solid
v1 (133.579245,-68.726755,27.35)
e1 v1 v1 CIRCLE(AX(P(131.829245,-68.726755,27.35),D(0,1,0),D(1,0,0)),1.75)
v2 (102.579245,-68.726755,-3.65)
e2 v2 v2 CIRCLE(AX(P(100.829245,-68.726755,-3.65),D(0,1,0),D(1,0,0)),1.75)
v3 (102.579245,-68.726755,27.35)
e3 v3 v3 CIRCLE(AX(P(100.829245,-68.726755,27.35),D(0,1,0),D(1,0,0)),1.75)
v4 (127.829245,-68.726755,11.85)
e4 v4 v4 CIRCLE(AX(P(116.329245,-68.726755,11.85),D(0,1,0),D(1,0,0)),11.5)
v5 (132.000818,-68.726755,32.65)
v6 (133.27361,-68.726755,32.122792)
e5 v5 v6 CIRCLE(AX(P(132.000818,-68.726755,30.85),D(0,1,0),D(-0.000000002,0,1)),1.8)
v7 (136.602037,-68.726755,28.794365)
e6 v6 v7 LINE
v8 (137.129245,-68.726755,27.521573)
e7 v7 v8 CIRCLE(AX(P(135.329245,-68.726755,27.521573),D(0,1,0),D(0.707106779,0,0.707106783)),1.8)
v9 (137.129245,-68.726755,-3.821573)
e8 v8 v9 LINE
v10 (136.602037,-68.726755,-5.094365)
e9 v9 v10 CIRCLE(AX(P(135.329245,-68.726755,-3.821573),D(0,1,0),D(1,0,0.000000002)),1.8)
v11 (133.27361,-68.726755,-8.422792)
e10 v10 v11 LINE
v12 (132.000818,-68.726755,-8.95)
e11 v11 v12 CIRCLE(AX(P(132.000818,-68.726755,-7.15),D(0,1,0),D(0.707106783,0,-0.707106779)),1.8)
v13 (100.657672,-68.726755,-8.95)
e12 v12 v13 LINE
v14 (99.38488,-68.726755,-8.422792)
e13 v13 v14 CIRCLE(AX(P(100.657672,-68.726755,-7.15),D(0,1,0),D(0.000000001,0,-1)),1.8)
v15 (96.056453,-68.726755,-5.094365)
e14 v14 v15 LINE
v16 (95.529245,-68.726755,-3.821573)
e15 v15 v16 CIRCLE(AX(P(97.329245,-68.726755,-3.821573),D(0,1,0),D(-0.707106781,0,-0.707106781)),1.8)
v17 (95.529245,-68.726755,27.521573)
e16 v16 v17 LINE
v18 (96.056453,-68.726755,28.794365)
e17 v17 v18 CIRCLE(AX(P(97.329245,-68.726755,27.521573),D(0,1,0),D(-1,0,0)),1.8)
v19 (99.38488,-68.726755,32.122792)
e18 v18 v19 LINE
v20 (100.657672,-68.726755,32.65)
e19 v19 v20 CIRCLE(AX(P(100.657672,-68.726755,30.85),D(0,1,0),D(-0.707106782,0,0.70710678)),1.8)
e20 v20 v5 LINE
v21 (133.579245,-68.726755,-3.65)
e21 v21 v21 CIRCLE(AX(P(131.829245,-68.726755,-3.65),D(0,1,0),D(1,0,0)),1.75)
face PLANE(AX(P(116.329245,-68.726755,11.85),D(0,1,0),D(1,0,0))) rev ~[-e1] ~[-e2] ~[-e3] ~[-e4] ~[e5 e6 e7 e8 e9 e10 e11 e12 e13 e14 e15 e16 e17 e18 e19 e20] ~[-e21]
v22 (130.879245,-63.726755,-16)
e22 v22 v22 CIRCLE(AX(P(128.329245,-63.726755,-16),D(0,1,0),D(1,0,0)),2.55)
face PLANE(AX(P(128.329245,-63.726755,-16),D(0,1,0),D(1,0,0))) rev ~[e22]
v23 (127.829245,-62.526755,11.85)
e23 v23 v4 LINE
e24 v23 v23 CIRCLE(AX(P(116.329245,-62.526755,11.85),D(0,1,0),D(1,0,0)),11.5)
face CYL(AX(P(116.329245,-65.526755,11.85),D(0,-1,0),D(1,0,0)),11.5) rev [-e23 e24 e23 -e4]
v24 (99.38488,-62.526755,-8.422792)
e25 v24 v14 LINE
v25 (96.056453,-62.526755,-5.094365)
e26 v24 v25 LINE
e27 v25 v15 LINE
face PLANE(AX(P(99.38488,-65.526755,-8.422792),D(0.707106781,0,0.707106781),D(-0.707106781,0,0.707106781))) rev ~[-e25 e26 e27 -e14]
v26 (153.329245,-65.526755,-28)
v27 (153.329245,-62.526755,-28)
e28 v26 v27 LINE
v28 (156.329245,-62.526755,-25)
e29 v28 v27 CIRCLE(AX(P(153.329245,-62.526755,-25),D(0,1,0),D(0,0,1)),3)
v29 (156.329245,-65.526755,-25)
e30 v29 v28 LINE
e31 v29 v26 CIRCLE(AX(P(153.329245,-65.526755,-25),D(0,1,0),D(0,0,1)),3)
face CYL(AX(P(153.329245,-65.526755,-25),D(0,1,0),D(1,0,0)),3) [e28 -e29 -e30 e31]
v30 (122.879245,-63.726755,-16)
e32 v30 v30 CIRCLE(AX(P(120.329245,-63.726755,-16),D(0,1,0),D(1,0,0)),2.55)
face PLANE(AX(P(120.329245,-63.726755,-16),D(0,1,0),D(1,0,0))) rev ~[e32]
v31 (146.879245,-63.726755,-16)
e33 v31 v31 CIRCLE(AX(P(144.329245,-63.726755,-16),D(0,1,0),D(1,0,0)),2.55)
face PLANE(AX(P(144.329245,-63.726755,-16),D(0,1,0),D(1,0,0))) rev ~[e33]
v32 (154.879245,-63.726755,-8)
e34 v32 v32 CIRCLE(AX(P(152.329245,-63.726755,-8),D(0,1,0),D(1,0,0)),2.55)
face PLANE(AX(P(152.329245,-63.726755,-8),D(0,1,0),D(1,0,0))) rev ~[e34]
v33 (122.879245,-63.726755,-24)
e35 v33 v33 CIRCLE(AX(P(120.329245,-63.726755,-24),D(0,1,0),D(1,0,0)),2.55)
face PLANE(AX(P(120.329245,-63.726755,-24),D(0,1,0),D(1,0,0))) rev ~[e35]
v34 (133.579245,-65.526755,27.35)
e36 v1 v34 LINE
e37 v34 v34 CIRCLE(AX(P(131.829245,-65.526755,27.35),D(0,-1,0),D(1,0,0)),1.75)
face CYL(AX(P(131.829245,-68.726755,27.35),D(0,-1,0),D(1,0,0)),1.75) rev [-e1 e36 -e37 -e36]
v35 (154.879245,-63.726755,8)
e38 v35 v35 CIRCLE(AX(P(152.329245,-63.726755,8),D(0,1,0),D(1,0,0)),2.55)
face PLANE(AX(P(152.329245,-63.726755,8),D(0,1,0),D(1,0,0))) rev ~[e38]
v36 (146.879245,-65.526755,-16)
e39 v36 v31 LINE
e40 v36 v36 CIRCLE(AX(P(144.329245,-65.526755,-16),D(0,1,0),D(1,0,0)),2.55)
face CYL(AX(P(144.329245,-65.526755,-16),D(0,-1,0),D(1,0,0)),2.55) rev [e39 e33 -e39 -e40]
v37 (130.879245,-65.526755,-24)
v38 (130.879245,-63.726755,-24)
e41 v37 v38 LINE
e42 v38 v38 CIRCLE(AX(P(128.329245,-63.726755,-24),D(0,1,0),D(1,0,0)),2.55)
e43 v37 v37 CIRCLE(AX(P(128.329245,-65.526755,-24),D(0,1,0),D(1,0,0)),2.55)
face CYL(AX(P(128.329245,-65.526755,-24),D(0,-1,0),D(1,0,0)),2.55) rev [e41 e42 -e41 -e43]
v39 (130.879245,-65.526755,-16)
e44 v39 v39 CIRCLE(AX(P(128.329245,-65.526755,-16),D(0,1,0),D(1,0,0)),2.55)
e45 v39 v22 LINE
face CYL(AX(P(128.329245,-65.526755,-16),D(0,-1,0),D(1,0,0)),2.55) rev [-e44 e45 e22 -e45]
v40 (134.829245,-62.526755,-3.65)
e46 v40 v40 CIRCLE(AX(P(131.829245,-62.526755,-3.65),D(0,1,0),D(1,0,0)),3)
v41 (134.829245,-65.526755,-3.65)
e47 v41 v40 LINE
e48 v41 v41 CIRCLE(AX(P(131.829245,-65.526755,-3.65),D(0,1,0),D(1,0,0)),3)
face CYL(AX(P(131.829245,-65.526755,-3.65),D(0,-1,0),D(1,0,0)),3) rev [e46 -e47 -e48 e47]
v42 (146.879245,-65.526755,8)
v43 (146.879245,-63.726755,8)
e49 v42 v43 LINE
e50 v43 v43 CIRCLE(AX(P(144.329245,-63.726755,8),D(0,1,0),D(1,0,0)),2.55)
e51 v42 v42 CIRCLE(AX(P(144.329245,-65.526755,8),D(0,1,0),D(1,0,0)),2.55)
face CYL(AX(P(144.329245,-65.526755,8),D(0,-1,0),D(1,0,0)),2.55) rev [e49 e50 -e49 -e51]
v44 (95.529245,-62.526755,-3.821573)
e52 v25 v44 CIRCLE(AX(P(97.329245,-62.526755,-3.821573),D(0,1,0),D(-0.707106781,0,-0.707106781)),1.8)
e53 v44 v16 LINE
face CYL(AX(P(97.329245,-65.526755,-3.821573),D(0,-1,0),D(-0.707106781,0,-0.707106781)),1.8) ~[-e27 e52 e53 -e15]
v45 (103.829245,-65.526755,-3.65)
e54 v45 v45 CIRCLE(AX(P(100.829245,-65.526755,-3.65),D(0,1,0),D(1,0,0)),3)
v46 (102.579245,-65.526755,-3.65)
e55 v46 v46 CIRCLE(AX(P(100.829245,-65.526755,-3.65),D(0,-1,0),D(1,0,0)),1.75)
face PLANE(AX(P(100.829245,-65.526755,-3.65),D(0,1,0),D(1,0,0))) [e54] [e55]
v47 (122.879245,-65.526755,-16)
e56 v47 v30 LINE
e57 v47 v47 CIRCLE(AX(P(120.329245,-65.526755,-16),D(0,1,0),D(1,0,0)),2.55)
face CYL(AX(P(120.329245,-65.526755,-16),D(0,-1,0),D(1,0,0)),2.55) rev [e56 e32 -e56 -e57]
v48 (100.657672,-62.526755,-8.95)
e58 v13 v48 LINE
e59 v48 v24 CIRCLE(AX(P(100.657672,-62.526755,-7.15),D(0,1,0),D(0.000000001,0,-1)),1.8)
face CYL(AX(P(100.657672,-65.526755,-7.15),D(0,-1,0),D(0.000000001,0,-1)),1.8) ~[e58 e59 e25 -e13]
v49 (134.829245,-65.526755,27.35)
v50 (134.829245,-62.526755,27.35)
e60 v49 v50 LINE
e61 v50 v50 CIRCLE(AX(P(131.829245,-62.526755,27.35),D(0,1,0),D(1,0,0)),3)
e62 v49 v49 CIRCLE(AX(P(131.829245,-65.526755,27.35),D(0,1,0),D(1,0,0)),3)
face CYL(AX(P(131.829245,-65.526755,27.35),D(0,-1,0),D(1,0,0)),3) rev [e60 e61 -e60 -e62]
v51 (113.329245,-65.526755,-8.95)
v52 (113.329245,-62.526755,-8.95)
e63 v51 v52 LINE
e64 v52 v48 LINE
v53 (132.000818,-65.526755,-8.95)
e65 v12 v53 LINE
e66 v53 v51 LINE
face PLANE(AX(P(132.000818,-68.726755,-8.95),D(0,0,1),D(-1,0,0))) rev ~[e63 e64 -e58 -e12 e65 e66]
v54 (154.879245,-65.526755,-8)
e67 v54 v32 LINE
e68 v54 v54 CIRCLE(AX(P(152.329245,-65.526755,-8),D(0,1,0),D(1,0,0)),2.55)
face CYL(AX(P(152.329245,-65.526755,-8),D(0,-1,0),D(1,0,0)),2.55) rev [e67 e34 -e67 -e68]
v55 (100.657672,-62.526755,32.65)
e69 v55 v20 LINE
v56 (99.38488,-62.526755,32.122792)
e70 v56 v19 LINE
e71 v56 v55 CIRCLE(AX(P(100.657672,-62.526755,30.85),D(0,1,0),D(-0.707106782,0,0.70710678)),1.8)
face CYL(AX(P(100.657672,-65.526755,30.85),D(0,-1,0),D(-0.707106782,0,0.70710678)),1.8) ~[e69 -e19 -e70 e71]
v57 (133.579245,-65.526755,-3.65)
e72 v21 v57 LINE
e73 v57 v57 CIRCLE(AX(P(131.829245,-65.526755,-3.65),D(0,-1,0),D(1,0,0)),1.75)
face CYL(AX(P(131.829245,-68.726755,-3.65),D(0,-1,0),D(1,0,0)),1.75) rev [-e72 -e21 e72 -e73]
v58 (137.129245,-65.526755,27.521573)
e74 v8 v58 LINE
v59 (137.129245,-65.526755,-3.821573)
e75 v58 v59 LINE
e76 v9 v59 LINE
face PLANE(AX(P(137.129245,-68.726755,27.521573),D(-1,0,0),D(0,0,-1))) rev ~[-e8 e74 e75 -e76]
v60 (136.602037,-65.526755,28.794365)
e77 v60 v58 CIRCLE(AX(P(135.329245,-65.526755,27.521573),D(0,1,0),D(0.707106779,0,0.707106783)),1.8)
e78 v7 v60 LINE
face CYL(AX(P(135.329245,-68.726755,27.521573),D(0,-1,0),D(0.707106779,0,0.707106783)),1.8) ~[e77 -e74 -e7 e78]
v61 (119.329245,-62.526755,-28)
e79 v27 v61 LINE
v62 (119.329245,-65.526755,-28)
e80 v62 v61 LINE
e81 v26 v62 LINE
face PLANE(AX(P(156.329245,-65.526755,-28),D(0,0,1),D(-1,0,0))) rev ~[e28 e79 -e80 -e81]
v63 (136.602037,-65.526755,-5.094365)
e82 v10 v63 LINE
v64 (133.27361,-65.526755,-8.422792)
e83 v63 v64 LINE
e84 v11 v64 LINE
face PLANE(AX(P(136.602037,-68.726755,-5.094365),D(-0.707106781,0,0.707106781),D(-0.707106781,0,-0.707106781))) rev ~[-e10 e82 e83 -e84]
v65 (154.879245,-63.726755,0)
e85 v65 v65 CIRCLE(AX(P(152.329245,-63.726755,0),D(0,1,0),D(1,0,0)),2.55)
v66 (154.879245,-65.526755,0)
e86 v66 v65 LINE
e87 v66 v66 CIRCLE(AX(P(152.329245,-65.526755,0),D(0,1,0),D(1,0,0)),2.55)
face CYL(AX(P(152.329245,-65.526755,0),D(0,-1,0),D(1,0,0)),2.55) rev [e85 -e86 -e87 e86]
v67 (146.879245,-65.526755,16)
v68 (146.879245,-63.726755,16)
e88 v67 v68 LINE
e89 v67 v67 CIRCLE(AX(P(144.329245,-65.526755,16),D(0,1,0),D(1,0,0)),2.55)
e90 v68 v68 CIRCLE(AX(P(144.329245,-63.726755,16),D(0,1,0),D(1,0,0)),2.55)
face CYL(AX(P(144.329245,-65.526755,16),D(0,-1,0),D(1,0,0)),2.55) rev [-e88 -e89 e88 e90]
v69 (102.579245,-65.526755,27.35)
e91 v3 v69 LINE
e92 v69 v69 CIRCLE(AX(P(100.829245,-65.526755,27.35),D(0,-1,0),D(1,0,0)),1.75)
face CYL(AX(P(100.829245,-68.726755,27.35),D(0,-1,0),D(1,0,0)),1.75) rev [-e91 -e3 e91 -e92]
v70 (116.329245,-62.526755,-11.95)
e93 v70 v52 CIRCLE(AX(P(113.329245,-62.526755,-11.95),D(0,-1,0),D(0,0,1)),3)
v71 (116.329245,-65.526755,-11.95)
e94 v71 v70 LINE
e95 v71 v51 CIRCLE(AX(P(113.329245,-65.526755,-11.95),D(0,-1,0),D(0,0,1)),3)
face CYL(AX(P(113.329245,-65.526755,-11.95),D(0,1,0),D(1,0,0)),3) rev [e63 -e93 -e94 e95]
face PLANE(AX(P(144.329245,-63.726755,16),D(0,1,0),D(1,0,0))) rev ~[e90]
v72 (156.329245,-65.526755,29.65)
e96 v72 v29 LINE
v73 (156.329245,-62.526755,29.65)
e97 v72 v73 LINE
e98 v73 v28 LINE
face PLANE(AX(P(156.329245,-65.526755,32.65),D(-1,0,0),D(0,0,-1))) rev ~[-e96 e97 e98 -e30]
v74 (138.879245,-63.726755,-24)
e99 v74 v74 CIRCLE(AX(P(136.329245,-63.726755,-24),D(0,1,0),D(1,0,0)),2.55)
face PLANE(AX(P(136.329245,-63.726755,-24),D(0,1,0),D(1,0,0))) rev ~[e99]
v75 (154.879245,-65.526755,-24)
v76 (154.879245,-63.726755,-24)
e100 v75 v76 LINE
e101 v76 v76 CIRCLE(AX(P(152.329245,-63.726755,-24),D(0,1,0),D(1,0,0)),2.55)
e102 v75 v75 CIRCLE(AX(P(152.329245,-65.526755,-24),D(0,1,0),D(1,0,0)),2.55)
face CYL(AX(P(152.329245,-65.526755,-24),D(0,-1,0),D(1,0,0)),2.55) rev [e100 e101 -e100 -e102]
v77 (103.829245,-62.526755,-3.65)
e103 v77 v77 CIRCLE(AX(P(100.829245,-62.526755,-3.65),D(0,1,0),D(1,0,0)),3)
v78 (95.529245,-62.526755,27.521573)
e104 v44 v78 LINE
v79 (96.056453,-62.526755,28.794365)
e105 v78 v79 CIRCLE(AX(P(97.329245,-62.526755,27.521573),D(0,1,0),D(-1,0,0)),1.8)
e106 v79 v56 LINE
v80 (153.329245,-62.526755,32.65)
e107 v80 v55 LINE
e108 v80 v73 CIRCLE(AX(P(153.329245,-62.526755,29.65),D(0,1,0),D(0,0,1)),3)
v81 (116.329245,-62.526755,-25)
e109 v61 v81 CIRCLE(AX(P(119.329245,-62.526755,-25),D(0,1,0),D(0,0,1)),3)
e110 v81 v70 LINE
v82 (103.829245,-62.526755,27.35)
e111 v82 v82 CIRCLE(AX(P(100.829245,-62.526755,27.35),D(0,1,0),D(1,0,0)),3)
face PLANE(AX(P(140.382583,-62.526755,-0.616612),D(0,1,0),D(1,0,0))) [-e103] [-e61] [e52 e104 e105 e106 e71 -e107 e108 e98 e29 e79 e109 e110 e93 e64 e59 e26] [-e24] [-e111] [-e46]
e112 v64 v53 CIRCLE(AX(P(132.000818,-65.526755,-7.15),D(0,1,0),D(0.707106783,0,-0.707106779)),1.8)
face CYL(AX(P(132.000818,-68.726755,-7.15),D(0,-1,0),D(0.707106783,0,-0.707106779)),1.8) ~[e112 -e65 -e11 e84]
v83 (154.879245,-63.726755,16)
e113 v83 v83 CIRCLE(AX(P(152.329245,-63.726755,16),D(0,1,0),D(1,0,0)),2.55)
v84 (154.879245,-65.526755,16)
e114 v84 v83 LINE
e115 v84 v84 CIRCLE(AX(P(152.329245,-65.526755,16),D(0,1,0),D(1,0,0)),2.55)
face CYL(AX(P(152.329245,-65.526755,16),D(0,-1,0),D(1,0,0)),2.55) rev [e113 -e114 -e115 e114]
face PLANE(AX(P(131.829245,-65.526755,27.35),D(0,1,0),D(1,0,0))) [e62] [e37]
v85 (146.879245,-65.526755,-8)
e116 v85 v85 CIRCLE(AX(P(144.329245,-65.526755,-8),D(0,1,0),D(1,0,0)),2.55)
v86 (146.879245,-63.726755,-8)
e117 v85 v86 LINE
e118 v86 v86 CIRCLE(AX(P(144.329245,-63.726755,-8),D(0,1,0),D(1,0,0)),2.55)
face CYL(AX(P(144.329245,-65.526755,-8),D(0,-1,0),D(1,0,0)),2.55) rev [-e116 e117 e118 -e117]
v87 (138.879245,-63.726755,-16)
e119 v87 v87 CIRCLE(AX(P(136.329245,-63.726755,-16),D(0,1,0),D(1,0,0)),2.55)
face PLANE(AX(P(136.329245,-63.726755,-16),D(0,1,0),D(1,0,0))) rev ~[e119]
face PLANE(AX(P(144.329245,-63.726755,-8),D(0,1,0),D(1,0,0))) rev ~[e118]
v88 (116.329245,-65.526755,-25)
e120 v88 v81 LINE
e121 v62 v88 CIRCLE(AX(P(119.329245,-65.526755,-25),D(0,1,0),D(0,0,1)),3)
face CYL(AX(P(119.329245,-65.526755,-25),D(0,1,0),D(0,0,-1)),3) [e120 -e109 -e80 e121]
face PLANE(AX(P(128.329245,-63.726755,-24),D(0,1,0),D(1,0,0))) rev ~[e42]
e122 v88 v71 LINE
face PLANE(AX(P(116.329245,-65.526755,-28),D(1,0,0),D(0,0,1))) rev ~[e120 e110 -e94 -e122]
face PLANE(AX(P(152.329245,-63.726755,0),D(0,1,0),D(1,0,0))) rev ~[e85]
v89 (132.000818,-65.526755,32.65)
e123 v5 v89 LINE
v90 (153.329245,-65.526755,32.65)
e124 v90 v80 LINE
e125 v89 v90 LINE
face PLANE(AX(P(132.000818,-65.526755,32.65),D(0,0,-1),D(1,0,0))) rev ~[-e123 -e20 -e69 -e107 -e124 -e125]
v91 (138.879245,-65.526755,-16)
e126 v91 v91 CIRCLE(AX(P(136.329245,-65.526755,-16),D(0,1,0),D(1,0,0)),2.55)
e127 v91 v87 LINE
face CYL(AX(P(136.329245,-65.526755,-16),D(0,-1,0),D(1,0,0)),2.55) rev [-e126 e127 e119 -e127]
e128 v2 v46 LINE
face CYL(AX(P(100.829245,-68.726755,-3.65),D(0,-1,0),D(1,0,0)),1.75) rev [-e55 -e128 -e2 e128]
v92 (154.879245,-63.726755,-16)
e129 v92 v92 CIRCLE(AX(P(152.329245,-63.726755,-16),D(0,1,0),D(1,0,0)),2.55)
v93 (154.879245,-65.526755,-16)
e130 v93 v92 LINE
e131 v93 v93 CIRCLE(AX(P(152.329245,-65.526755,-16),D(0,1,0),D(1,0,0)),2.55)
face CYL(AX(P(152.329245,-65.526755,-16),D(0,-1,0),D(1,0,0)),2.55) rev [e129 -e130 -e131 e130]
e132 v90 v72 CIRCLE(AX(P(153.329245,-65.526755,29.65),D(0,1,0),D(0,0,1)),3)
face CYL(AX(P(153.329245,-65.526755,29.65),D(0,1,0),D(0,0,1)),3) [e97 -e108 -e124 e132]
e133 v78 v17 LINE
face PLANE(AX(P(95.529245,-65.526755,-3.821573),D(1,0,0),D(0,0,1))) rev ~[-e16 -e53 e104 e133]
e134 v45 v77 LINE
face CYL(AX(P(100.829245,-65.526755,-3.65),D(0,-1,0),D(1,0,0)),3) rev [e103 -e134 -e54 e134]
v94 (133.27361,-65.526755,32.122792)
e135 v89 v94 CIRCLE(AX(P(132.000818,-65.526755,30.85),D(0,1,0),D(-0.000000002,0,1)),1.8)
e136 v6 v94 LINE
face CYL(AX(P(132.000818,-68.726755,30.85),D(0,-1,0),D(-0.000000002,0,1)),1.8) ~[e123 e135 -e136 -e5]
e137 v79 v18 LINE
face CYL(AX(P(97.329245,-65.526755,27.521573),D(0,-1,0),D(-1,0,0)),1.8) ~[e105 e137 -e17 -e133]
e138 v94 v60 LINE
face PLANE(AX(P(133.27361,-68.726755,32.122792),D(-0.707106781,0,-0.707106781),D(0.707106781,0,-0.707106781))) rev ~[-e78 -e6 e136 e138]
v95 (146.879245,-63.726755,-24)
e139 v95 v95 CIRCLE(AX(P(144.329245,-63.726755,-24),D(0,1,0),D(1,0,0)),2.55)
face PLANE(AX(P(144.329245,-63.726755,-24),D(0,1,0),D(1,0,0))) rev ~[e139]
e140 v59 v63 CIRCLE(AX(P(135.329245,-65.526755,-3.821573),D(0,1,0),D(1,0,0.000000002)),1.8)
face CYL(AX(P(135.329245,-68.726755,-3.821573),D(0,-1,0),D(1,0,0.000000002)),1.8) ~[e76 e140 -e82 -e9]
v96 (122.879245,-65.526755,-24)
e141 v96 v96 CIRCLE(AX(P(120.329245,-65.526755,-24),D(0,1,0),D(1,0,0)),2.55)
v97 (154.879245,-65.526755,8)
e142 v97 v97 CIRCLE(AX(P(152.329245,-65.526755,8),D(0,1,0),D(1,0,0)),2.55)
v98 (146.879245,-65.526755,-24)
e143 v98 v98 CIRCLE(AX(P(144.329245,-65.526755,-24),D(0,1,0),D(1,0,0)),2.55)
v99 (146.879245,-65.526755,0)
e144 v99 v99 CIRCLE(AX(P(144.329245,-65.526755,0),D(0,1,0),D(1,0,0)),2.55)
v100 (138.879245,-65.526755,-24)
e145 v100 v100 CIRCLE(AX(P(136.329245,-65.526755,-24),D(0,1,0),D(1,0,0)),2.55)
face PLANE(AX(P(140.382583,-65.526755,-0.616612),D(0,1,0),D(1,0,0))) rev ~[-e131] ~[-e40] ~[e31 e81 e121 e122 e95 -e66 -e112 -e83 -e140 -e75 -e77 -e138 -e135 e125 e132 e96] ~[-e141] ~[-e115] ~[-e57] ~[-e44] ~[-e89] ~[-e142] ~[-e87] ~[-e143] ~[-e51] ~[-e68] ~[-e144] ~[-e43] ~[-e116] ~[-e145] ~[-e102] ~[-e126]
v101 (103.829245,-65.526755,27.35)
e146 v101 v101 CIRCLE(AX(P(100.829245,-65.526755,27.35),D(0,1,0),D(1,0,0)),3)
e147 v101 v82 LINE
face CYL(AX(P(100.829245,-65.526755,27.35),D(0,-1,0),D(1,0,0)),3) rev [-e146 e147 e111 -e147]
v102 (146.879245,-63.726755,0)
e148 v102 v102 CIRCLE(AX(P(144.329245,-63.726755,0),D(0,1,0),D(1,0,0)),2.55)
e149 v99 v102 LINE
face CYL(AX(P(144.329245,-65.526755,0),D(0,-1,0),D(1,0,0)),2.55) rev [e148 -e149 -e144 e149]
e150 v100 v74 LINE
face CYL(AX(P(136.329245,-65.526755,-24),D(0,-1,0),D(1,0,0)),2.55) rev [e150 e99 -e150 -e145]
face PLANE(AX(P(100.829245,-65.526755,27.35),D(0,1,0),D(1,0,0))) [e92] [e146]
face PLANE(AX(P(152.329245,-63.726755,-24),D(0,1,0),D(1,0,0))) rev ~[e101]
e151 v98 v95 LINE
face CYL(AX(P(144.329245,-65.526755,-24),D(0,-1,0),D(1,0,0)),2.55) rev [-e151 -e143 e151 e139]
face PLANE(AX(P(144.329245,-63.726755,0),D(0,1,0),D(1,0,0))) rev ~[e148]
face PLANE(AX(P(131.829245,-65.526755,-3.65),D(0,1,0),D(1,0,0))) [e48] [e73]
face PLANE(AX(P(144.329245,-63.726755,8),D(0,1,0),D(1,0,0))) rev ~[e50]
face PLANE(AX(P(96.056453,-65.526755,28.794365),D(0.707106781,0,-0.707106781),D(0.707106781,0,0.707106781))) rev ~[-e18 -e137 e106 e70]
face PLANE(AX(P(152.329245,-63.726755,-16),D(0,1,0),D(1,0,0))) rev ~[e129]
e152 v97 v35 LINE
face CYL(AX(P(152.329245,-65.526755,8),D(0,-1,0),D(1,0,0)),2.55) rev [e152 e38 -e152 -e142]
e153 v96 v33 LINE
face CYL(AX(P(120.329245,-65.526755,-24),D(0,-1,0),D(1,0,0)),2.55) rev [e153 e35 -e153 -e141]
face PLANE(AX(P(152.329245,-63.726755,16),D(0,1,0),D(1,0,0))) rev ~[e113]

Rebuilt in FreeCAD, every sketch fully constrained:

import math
import FreeCAD as App
import Part
import Sketcher
from FreeCAD import Vector
Q = App.Units.Quantity


def edges_at(feature, points):
    """Names of the edges that pass closest to the given points."""
    edges = feature.Shape.Edges
    near = lambda p: min(range(len(edges)), key=lambda i: edges[i].distToShape(Part.Vertex(*p))[0])
    return sorted({f"Edge{near(p) + 1}" for p in points})

doc = App.newDocument("Part")
body = doc.addObject("PartDesign::Body", "Body")

# Sketch on XZ plane
sketch1 = body.newObject("Sketcher::SketchObject", "Sketch")
sketch1.AttachmentSupport = (doc.getObject("XZ_Plane"), [""])
sketch1.MapMode = "FlatFace"
sketch1.AttachmentOffset = App.Placement(Vector(0, 0, 68.726755), App.Rotation())
sketch1.addGeometry(Part.LineSegment(Vector(137.1, 27.5, 0), Vector(137.1, -3.8, 0)), False)
sketch1.addGeometry(Part.ArcOfCircle(Part.Circle(Vector(135.3, -3.8, 0), Vector(0, 0, 1), 1.8), math.radians(-45), math.radians(0)), False)
sketch1.addGeometry(Part.LineSegment(Vector(136.6, -5.1, 0), Vector(133.3, -8.4, 0)), False)
sketch1.addGeometry(Part.ArcOfCircle(Part.Circle(Vector(132, -7.2, 0), Vector(0, 0, 1), 1.8), math.radians(-90), math.radians(-45)), False)
sketch1.addGeometry(Part.LineSegment(Vector(132, -8.9, 0), Vector(100.7, -8.9, 0)), False)
sketch1.addGeometry(Part.ArcOfCircle(Part.Circle(Vector(100.7, -7.2, 0), Vector(0, 0, 1), 1.8), math.radians(-135), math.radians(-90)), False)
sketch1.addGeometry(Part.LineSegment(Vector(99.4, -8.4, 0), Vector(96.1, -5.1, 0)), False)
sketch1.addGeometry(Part.ArcOfCircle(Part.Circle(Vector(97.3, -3.8, 0), Vector(0, 0, 1), 1.8), math.radians(-180), math.radians(-135)), False)
sketch1.addGeometry(Part.LineSegment(Vector(95.5, -3.8, 0), Vector(95.5, 27.5, 0)), False)
sketch1.addGeometry(Part.ArcOfCircle(Part.Circle(Vector(97.3, 27.5, 0), Vector(0, 0, 1), 1.8), math.radians(135), math.radians(180)), False)
sketch1.addGeometry(Part.LineSegment(Vector(96.1, 28.8, 0), Vector(99.4, 32.1, 0)), False)
sketch1.addGeometry(Part.ArcOfCircle(Part.Circle(Vector(100.7, 30.9, 0), Vector(0, 0, 1), 1.8), math.radians(90), math.radians(135)), False)
sketch1.addGeometry(Part.LineSegment(Vector(100.7, 32.6, 0), Vector(132, 32.6, 0)), False)
sketch1.addGeometry(Part.ArcOfCircle(Part.Circle(Vector(132, 30.9, 0), Vector(0, 0, 1), 1.8), math.radians(45), math.radians(90)), False)
sketch1.addGeometry(Part.LineSegment(Vector(133.3, 32.1, 0), Vector(136.6, 28.8, 0)), False)
sketch1.addGeometry(Part.ArcOfCircle(Part.Circle(Vector(135.3, 27.5, 0), Vector(0, 0, 1), 1.8), math.radians(0), math.radians(45)), False)
sketch1.addGeometry(Part.Circle(Vector(100.8, 27.4, 0), Vector(0, 0, 1), 1.8), False)
sketch1.addGeometry(Part.Circle(Vector(131.8, 27.4, 0), Vector(0, 0, 1), 1.8), False)
sketch1.addGeometry(Part.Circle(Vector(100.8, -3.6, 0), Vector(0, 0, 1), 1.8), False)
sketch1.addGeometry(Part.Circle(Vector(116.3, 11.8, 0), Vector(0, 0, 1), 11.5), False)
sketch1.addGeometry(Part.Circle(Vector(131.8, -3.6, 0), Vector(0, 0, 1), 1.8), False)
sketch1.addConstraint(Sketcher.Constraint("Tangent", 0, 2, 1, 2))
sketch1.addConstraint(Sketcher.Constraint("Tangent", 1, 1, 2, 1))
sketch1.addConstraint(Sketcher.Constraint("Tangent", 2, 2, 3, 2))
sketch1.addConstraint(Sketcher.Constraint("Tangent", 3, 1, 4, 1))
sketch1.addConstraint(Sketcher.Constraint("Tangent", 4, 2, 5, 2))
sketch1.addConstraint(Sketcher.Constraint("Tangent", 5, 1, 6, 1))
sketch1.addConstraint(Sketcher.Constraint("Tangent", 6, 2, 7, 2))
sketch1.addConstraint(Sketcher.Constraint("Tangent", 7, 1, 8, 1))
sketch1.addConstraint(Sketcher.Constraint("Tangent", 8, 2, 9, 2))
sketch1.addConstraint(Sketcher.Constraint("Tangent", 9, 1, 10, 1))
sketch1.addConstraint(Sketcher.Constraint("Tangent", 10, 2, 11, 2))
sketch1.addConstraint(Sketcher.Constraint("Tangent", 11, 1, 12, 1))
sketch1.addConstraint(Sketcher.Constraint("Tangent", 12, 2, 13, 2))
sketch1.addConstraint(Sketcher.Constraint("Tangent", 13, 1, 14, 1))
sketch1.addConstraint(Sketcher.Constraint("Tangent", 14, 2, 15, 2))
sketch1.addConstraint(Sketcher.Constraint("Tangent", 15, 1, 0, 1))
sketch1.addConstraint(Sketcher.Constraint("Vertical", 0))
sketch1.addConstraint(Sketcher.Constraint("Horizontal", 4))
sketch1.addConstraint(Sketcher.Constraint("Vertical", 8))
sketch1.addConstraint(Sketcher.Constraint("Horizontal", 12))
sketch1.addConstraint(Sketcher.Constraint("Equal", 1, 3))
sketch1.addConstraint(Sketcher.Constraint("Equal", 3, 5))
sketch1.addConstraint(Sketcher.Constraint("Equal", 5, 7))
sketch1.addConstraint(Sketcher.Constraint("Equal", 7, 9))
sketch1.addConstraint(Sketcher.Constraint("Equal", 9, 11))
sketch1.addConstraint(Sketcher.Constraint("Equal", 11, 13))
sketch1.addConstraint(Sketcher.Constraint("Equal", 13, 15))
sketch1.addConstraint(Sketcher.Constraint("Equal", 16, 17))
sketch1.addConstraint(Sketcher.Constraint("Equal", 17, 18))
sketch1.addConstraint(Sketcher.Constraint("Equal", 18, 20))
sketch1.addConstraint(Sketcher.Constraint("Perpendicular", 2, 6))
sketch1.addConstraint(Sketcher.Constraint("Perpendicular", 6, 10))
sketch1.addConstraint(Sketcher.Constraint("Perpendicular", 10, 14))
sketch1.addConstraint(Sketcher.Constraint("Horizontal", 1, 3, 7, 3))
sketch1.addConstraint(Sketcher.Constraint("Horizontal", 9, 3, 15, 3))
sketch1.addConstraint(Sketcher.Constraint("Horizontal", 16, 3, 17, 3))
sketch1.addConstraint(Sketcher.Constraint("Horizontal", 18, 3, 20, 3))
sketch1.addConstraint(Sketcher.Constraint("Horizontal", 2, 2, 5, 1))
sketch1.addConstraint(Sketcher.Constraint("Vertical", 5, 3, 11, 3))
sketch1.addConstraint(Sketcher.Constraint("Vertical", 16, 3, 18, 3))
sketch1.addConstraint(Sketcher.Constraint("Vertical", 17, 3, 20, 3))
sketch1.addConstraint(Sketcher.Constraint("Equal", 12, 0))
sketch1.addConstraint(Sketcher.Constraint("Diameter", 19, Q("23 mm")))
sketch1.addConstraint(Sketcher.Constraint("Diameter", 16, Q("3.5 mm")))
sketch1.addConstraint(Sketcher.Constraint("Radius", 1, Q("1.8 mm")))
sketch1.addConstraint(Sketcher.Constraint("DistanceX", 7, 3, 1, 3, Q("38 mm")))
sketch1.addConstraint(Sketcher.Constraint("DistanceX", 16, 3, 17, 3, Q("31 mm")))
sketch1.addConstraint(Sketcher.Constraint("DistanceY", 18, 3, 16, 3, Q("31 mm")))
sketch1.addConstraint(Sketcher.Constraint("DistanceX", 7, 3, 19, 3, Q("19 mm")))
sketch1.addConstraint(Sketcher.Constraint("DistanceX", 9, 3, 16, 3, Q("3.5 mm")))
sketch1.addConstraint(Sketcher.Constraint("DistanceY", 16, 3, 11, 3, Q("3.5 mm")))
sketch1.addConstraint(Sketcher.Constraint("DistanceY", 19, 3, 17, 3, Q("15.5 mm")))
sketch1.addConstraint(Sketcher.Constraint("DistanceY", 3, 3, -1, 1, Q("7.15 mm")))
sketch1.addConstraint(Sketcher.Constraint("DistanceX", 4, 2, 4, 1, Q("31.343146 mm")))
sketch1.addConstraint(Sketcher.Constraint("DistanceX", -1, 1, 5, 3, Q("100.657672 mm")))
pad1 = body.newObject("PartDesign::Pad", "Pad")
pad1.Profile = sketch1
pad1.Length = 3.2
pad1.Reversed = True

# Sketch on XZ plane
sketch2 = body.newObject("Sketcher::SketchObject", "Sketch001")
sketch2.AttachmentSupport = (doc.getObject("XZ_Plane"), [""])
sketch2.MapMode = "FlatFace"
sketch2.AttachmentOffset = App.Placement(Vector(0, 0, 65.526755), App.Rotation())
sketch2.addGeometry(Part.LineSegment(Vector(156.3, 32.6, 0), Vector(156.3, -28, 0)), False)
sketch2.addGeometry(Part.LineSegment(Vector(156.3, -28, 0), Vector(116.3, -28, 0)), False)
sketch2.addGeometry(Part.LineSegment(Vector(116.3, -28, 0), Vector(116.3, -8.9, 0)), False)
sketch2.addGeometry(Part.LineSegment(Vector(116.3, -8.9, 0), Vector(100.7, -8.9, 0)), False)
sketch2.addGeometry(Part.ArcOfCircle(Part.Circle(Vector(100.7, -7.2, 0), Vector(0, 0, 1), 1.8), math.radians(-135), math.radians(-90)), False)
sketch2.addGeometry(Part.LineSegment(Vector(99.4, -8.4, 0), Vector(96.1, -5.1, 0)), False)
sketch2.addGeometry(Part.ArcOfCircle(Part.Circle(Vector(97.3, -3.8, 0), Vector(0, 0, 1), 1.8), math.radians(-180), math.radians(-135)), False)
sketch2.addGeometry(Part.LineSegment(Vector(95.5, -3.8, 0), Vector(95.5, 27.5, 0)), False)
sketch2.addGeometry(Part.ArcOfCircle(Part.Circle(Vector(97.3, 27.5, 0), Vector(0, 0, 1), 1.8), math.radians(135), math.radians(180)), False)
sketch2.addGeometry(Part.LineSegment(Vector(96.1, 28.8, 0), Vector(99.4, 32.1, 0)), False)
sketch2.addGeometry(Part.ArcOfCircle(Part.Circle(Vector(100.7, 30.9, 0), Vector(0, 0, 1), 1.8), math.radians(90), math.radians(135)), False)
sketch2.addGeometry(Part.LineSegment(Vector(100.7, 32.6, 0), Vector(156.3, 32.6, 0)), False)
sketch2.addGeometry(Part.Circle(Vector(144.3, 16, 0), Vector(0, 0, 1), 2.5), False)
sketch2.addGeometry(Part.Circle(Vector(144.3, 8, 0), Vector(0, 0, 1), 2.5), False)
sketch2.addGeometry(Part.Circle(Vector(152.3, 16, 0), Vector(0, 0, 1), 2.5), False)
sketch2.addGeometry(Part.Circle(Vector(152.3, 8, 0), Vector(0, 0, 1), 2.5), False)
sketch2.addGeometry(Part.Circle(Vector(144.3, 0, 0), Vector(0, 0, 1), 2.5), False)
sketch2.addGeometry(Part.Circle(Vector(152.3, 0, 0), Vector(0, 0, 1), 2.5), False)
sketch2.addGeometry(Part.Circle(Vector(120.3, -16, 0), Vector(0, 0, 1), 2.5), False)
sketch2.addGeometry(Part.Circle(Vector(120.3, -24, 0), Vector(0, 0, 1), 2.5), False)
sketch2.addGeometry(Part.Circle(Vector(128.3, -16, 0), Vector(0, 0, 1), 2.5), False)
sketch2.addGeometry(Part.Circle(Vector(136.3, -16, 0), Vector(0, 0, 1), 2.5), False)
sketch2.addGeometry(Part.Circle(Vector(128.3, -24, 0), Vector(0, 0, 1), 2.5), False)
sketch2.addGeometry(Part.Circle(Vector(136.3, -24, 0), Vector(0, 0, 1), 2.5), False)
sketch2.addGeometry(Part.Circle(Vector(144.3, -8, 0), Vector(0, 0, 1), 2.5), False)
sketch2.addGeometry(Part.Circle(Vector(152.3, -8, 0), Vector(0, 0, 1), 2.5), False)
sketch2.addGeometry(Part.Circle(Vector(144.3, -16, 0), Vector(0, 0, 1), 2.5), False)
sketch2.addGeometry(Part.Circle(Vector(144.3, -24, 0), Vector(0, 0, 1), 2.5), False)
sketch2.addGeometry(Part.Circle(Vector(152.3, -16, 0), Vector(0, 0, 1), 2.5), False)
sketch2.addGeometry(Part.Circle(Vector(152.3, -24, 0), Vector(0, 0, 1), 2.5), False)
sketch2.addGeometry(Part.Circle(Vector(116.3, 11.8, 0), Vector(0, 0, 1), 11.5), False)
sketch2.addGeometry(Part.Circle(Vector(131.8, -3.6, 0), Vector(0, 0, 1), 1.8), False)
sketch2.addGeometry(Part.Circle(Vector(100.8, -3.6, 0), Vector(0, 0, 1), 1.8), False)
sketch2.addGeometry(Part.Circle(Vector(131.8, 27.4, 0), Vector(0, 0, 1), 1.8), False)
sketch2.addGeometry(Part.Circle(Vector(100.8, 27.4, 0), Vector(0, 0, 1), 1.8), False)
sketch2.addConstraint(Sketcher.Constraint("Coincident", 0, 2, 1, 1))
sketch2.addConstraint(Sketcher.Constraint("Coincident", 1, 2, 2, 1))
sketch2.addConstraint(Sketcher.Constraint("Coincident", 2, 2, 3, 1))
sketch2.addConstraint(Sketcher.Constraint("Tangent", 3, 2, 4, 2))
sketch2.addConstraint(Sketcher.Constraint("Tangent", 4, 1, 5, 1))
sketch2.addConstraint(Sketcher.Constraint("Tangent", 5, 2, 6, 2))
sketch2.addConstraint(Sketcher.Constraint("Tangent", 6, 1, 7, 1))
sketch2.addConstraint(Sketcher.Constraint("Tangent", 7, 2, 8, 2))
sketch2.addConstraint(Sketcher.Constraint("Tangent", 8, 1, 9, 1))
sketch2.addConstraint(Sketcher.Constraint("Tangent", 9, 2, 10, 2))
sketch2.addConstraint(Sketcher.Constraint("Tangent", 10, 1, 11, 1))
sketch2.addConstraint(Sketcher.Constraint("Coincident", 11, 2, 0, 1))
sketch2.addConstraint(Sketcher.Constraint("Vertical", 0))
sketch2.addConstraint(Sketcher.Constraint("Horizontal", 1))
sketch2.addConstraint(Sketcher.Constraint("Vertical", 2))
sketch2.addConstraint(Sketcher.Constraint("Horizontal", 3))
sketch2.addConstraint(Sketcher.Constraint("Vertical", 7))
sketch2.addConstraint(Sketcher.Constraint("Horizontal", 11))
sketch2.addConstraint(Sketcher.Constraint("Equal", 4, 6))
sketch2.addConstraint(Sketcher.Constraint("Equal", 6, 8))
sketch2.addConstraint(Sketcher.Constraint("Equal", 8, 10))
sketch2.addConstraint(Sketcher.Constraint("Equal", 12, 13))
sketch2.addConstraint(Sketcher.Constraint("Equal", 13, 14))
sketch2.addConstraint(Sketcher.Constraint("Equal", 14, 15))
sketch2.addConstraint(Sketcher.Constraint("Equal", 15, 16))
sketch2.addConstraint(Sketcher.Constraint("Equal", 16, 17))
sketch2.addConstraint(Sketcher.Constraint("Equal", 17, 18))
sketch2.addConstraint(Sketcher.Constraint("Equal", 18, 19))
sketch2.addConstraint(Sketcher.Constraint("Equal", 19, 20))
sketch2.addConstraint(Sketcher.Constraint("Equal", 20, 21))
sketch2.addConstraint(Sketcher.Constraint("Equal", 21, 22))
sketch2.addConstraint(Sketcher.Constraint("Equal", 22, 23))
sketch2.addConstraint(Sketcher.Constraint("Equal", 23, 24))
sketch2.addConstraint(Sketcher.Constraint("Equal", 24, 25))
sketch2.addConstraint(Sketcher.Constraint("Equal", 25, 26))
sketch2.addConstraint(Sketcher.Constraint("Equal", 26, 27))
sketch2.addConstraint(Sketcher.Constraint("Equal", 27, 28))
sketch2.addConstraint(Sketcher.Constraint("Equal", 28, 29))
sketch2.addConstraint(Sketcher.Constraint("Equal", 31, 32))
sketch2.addConstraint(Sketcher.Constraint("Equal", 32, 33))
sketch2.addConstraint(Sketcher.Constraint("Equal", 33, 34))
sketch2.addConstraint(Sketcher.Constraint("Symmetric", 13, 3, 24, 3, -1))
sketch2.addConstraint(Sketcher.Constraint("Symmetric", 15, 3, 25, 3, -1))
sketch2.addConstraint(Sketcher.Constraint("Symmetric", 12, 3, 26, 3, -1))
sketch2.addConstraint(Sketcher.Constraint("Symmetric", 14, 3, 28, 3, -1))
sketch2.addConstraint(Sketcher.Constraint("PointOnObject", 16, 3, -1))
sketch2.addConstraint(Sketcher.Constraint("PointOnObject", 17, 3, -1))
sketch2.addConstraint(Sketcher.Constraint("Perpendicular", 5, 9))
sketch2.addConstraint(Sketcher.Constraint("Horizontal", 12, 3, 14, 3))
sketch2.addConstraint(Sketcher.Constraint("Horizontal", 13, 3, 15, 3))
sketch2.addConstraint(Sketcher.Constraint("Horizontal", 18, 3, 20, 3))
sketch2.addConstraint(Sketcher.Constraint("Horizontal", 20, 3, 21, 3))
sketch2.addConstraint(Sketcher.Constraint("Horizontal", 19, 3, 22, 3))
sketch2.addConstraint(Sketcher.Constraint("Horizontal", 22, 3, 23, 3))
sketch2.addConstraint(Sketcher.Constraint("Horizontal", 21, 3, 26, 3))
sketch2.addConstraint(Sketcher.Constraint("Horizontal", 23, 3, 27, 3))
sketch2.addConstraint(Sketcher.Constraint("Horizontal", 27, 3, 29, 3))
sketch2.addConstraint(Sketcher.Constraint("Horizontal", 31, 3, 32, 3))
sketch2.addConstraint(Sketcher.Constraint("Horizontal", 33, 3, 34, 3))
sketch2.addConstraint(Sketcher.Constraint("Vertical", 4, 3, 10, 3))
sketch2.addConstraint(Sketcher.Constraint("Vertical", 12, 3, 13, 3))
sketch2.addConstraint(Sketcher.Constraint("Vertical", 14, 3, 15, 3))
sketch2.addConstraint(Sketcher.Constraint("Vertical", 13, 3, 16, 3))
sketch2.addConstraint(Sketcher.Constraint("Vertical", 15, 3, 17, 3))
sketch2.addConstraint(Sketcher.Constraint("Vertical", 18, 3, 19, 3))
sketch2.addConstraint(Sketcher.Constraint("Vertical", 20, 3, 22, 3))
sketch2.addConstraint(Sketcher.Constraint("Vertical", 21, 3, 23, 3))
sketch2.addConstraint(Sketcher.Constraint("Vertical", 26, 3, 27, 3))
sketch2.addConstraint(Sketcher.Constraint("Vertical", 28, 3, 29, 3))
sketch2.addConstraint(Sketcher.Constraint("Vertical", 31, 3, 33, 3))
sketch2.addConstraint(Sketcher.Constraint("Vertical", 32, 3, 34, 3))
sketch2.addConstraint(Sketcher.Constraint("Vertical", 30, 3, 1, 2))
sketch2.addConstraint(Sketcher.Constraint("Vertical", 5, 2, 8, 1))
sketch2.addConstraint(Sketcher.Constraint("Diameter", 30, Q("23 mm")))
sketch2.addConstraint(Sketcher.Constraint("Diameter", 12, Q("5.1 mm")))
sketch2.addConstraint(Sketcher.Constraint("Diameter", 31, Q("3.5 mm")))
sketch2.addConstraint(Sketcher.Constraint("Radius", 4, Q("1.8 mm")))
sketch2.addConstraint(Sketcher.Constraint("DistanceX", 1, 2, 1, 1, Q("40 mm")))
sketch2.addConstraint(Sketcher.Constraint("DistanceY", -1, 1, 12, 3, Q("16 mm")))
sketch2.addConstraint(Sketcher.Constraint("DistanceY", -1, 1, 13, 3, Q("8 mm")))
sketch2.addConstraint(Sketcher.Constraint("DistanceY", 19, 3, -1, 1, Q("24 mm")))
sketch2.addConstraint(Sketcher.Constraint("DistanceY", 0, 2, -1, 1, Q("28 mm")))
sketch2.addConstraint(Sketcher.Constraint("DistanceY", 4, 3, 10, 3, Q("38 mm")))
sketch2.addConstraint(Sketcher.Constraint("DistanceX", 8, 3, 12, 3, Q("47 mm")))
sketch2.addConstraint(Sketcher.Constraint("DistanceX", 12, 3, 14, 3, Q("8 mm")))
sketch2.addConstraint(Sketcher.Constraint("DistanceX", 6, 3, 18, 3, Q("23 mm")))
sketch2.addConstraint(Sketcher.Constraint("DistanceX", 18, 3, 20, 3, Q("8 mm")))
sketch2.addConstraint(Sketcher.Constraint("DistanceX", 20, 3, 21, 3, Q("8 mm")))
sketch2.addConstraint(Sketcher.Constraint("DistanceX", 6, 3, 30, 3, Q("19 mm")))
sketch2.addConstraint(Sketcher.Constraint("DistanceY", 30, 3, 10, 3, Q("19 mm")))
sketch2.addConstraint(Sketcher.Constraint("DistanceX", 34, 3, 33, 3, Q("31 mm")))
sketch2.addConstraint(Sketcher.Constraint("DistanceY", 32, 3, 34, 3, Q("31 mm")))
sketch2.addConstraint(Sketcher.Constraint("DistanceY", 0, 2, 0, 1, Q("60.65 mm")))
sketch2.addConstraint(Sketcher.Constraint("DistanceX", 20, 3, 31, 3, Q("3.5 mm")))
sketch2.addConstraint(Sketcher.Constraint("DistanceY", 4, 3, 32, 3, Q("3.5 mm")))
sketch2.addConstraint(Sketcher.Constraint("DistanceX", 3, 2, 3, 1, Q("15.671573 mm")))
sketch2.addConstraint(Sketcher.Constraint("DistanceX", -1, 1, 4, 3, Q("100.657672 mm")))
pad2 = body.newObject("PartDesign::Pad", "Pad001")
pad2.Profile = sketch2
pad2.Length = 3
pad2.Reversed = True

# Sketch on XZ plane
sketch3 = body.newObject("Sketcher::SketchObject", "Sketch002")
sketch3.AttachmentSupport = (doc.getObject("XZ_Plane"), [""])
sketch3.MapMode = "FlatFace"
sketch3.AttachmentOffset = App.Placement(Vector(0, 0, 63.726755), App.Rotation())
sketch3.addGeometry(Part.Circle(Vector(152.3, 16, 0), Vector(0, 0, 1), 2.5), False)
sketch3.addGeometry(Part.Circle(Vector(144.3, 16, 0), Vector(0, 0, 1), 2.5), False)
sketch3.addGeometry(Part.Circle(Vector(144.3, 8, 0), Vector(0, 0, 1), 2.5), False)
sketch3.addGeometry(Part.Circle(Vector(152.3, 8, 0), Vector(0, 0, 1), 2.5), False)
sketch3.addGeometry(Part.Circle(Vector(152.3, 0, 0), Vector(0, 0, 1), 2.5), False)
sketch3.addGeometry(Part.Circle(Vector(144.3, 0, 0), Vector(0, 0, 1), 2.5), False)
sketch3.addGeometry(Part.Circle(Vector(152.3, -8, 0), Vector(0, 0, 1), 2.5), False)
sketch3.addGeometry(Part.Circle(Vector(152.3, -16, 0), Vector(0, 0, 1), 2.5), False)
sketch3.addGeometry(Part.Circle(Vector(144.3, -24, 0), Vector(0, 0, 1), 2.5), False)
sketch3.addGeometry(Part.Circle(Vector(152.3, -24, 0), Vector(0, 0, 1), 2.5), False)
sketch3.addGeometry(Part.Circle(Vector(136.3, -24, 0), Vector(0, 0, 1), 2.5), False)
sketch3.addGeometry(Part.Circle(Vector(136.3, -16, 0), Vector(0, 0, 1), 2.5), False)
sketch3.addGeometry(Part.Circle(Vector(128.3, -16, 0), Vector(0, 0, 1), 2.5), False)
sketch3.addGeometry(Part.Circle(Vector(128.3, -24, 0), Vector(0, 0, 1), 2.5), False)
sketch3.addGeometry(Part.Circle(Vector(120.3, -16, 0), Vector(0, 0, 1), 2.5), False)
sketch3.addGeometry(Part.Circle(Vector(120.3, -24, 0), Vector(0, 0, 1), 2.5), False)
sketch3.addGeometry(Part.Circle(Vector(144.3, -8, 0), Vector(0, 0, 1), 2.5), False)
sketch3.addGeometry(Part.Circle(Vector(144.3, -16, 0), Vector(0, 0, 1), 2.5), False)
sketch3.addConstraint(Sketcher.Constraint("Equal", 0, 1))
sketch3.addConstraint(Sketcher.Constraint("Equal", 1, 2))
sketch3.addConstraint(Sketcher.Constraint("Equal", 2, 3))
sketch3.addConstraint(Sketcher.Constraint("Equal", 3, 4))
sketch3.addConstraint(Sketcher.Constraint("Equal", 4, 5))
sketch3.addConstraint(Sketcher.Constraint("Equal", 5, 6))
sketch3.addConstraint(Sketcher.Constraint("Equal", 6, 7))
sketch3.addConstraint(Sketcher.Constraint("Equal", 7, 8))
sketch3.addConstraint(Sketcher.Constraint("Equal", 8, 9))
sketch3.addConstraint(Sketcher.Constraint("Equal", 9, 10))
sketch3.addConstraint(Sketcher.Constraint("Equal", 10, 11))
sketch3.addConstraint(Sketcher.Constraint("Equal", 11, 12))
sketch3.addConstraint(Sketcher.Constraint("Equal", 12, 13))
sketch3.addConstraint(Sketcher.Constraint("Equal", 13, 14))
sketch3.addConstraint(Sketcher.Constraint("Equal", 14, 15))
sketch3.addConstraint(Sketcher.Constraint("Equal", 15, 16))
sketch3.addConstraint(Sketcher.Constraint("Equal", 16, 17))
sketch3.addConstraint(Sketcher.Constraint("Symmetric", 3, 3, 6, 3, -1))
sketch3.addConstraint(Sketcher.Constraint("Symmetric", 0, 3, 7, 3, -1))
sketch3.addConstraint(Sketcher.Constraint("Symmetric", 2, 3, 16, 3, -1))
sketch3.addConstraint(Sketcher.Constraint("Symmetric", 1, 3, 17, 3, -1))
sketch3.addConstraint(Sketcher.Constraint("PointOnObject", 4, 3, -1))
sketch3.addConstraint(Sketcher.Constraint("PointOnObject", 5, 3, -1))
sketch3.addConstraint(Sketcher.Constraint("Horizontal", 0, 3, 1, 3))
sketch3.addConstraint(Sketcher.Constraint("Horizontal", 2, 3, 3, 3))
sketch3.addConstraint(Sketcher.Constraint("Horizontal", 8, 3, 9, 3))
sketch3.addConstraint(Sketcher.Constraint("Horizontal", 9, 3, 10, 3))
sketch3.addConstraint(Sketcher.Constraint("Horizontal", 7, 3, 11, 3))
sketch3.addConstraint(Sketcher.Constraint("Horizontal", 11, 3, 12, 3))
sketch3.addConstraint(Sketcher.Constraint("Horizontal", 10, 3, 13, 3))
sketch3.addConstraint(Sketcher.Constraint("Horizontal", 12, 3, 14, 3))
sketch3.addConstraint(Sketcher.Constraint("Horizontal", 13, 3, 15, 3))
sketch3.addConstraint(Sketcher.Constraint("Vertical", 1, 3, 2, 3))
sketch3.addConstraint(Sketcher.Constraint("Vertical", 0, 3, 3, 3))
sketch3.addConstraint(Sketcher.Constraint("Vertical", 3, 3, 4, 3))
sketch3.addConstraint(Sketcher.Constraint("Vertical", 2, 3, 5, 3))
sketch3.addConstraint(Sketcher.Constraint("Vertical", 5, 3, 8, 3))
sketch3.addConstraint(Sketcher.Constraint("Vertical", 7, 3, 9, 3))
sketch3.addConstraint(Sketcher.Constraint("Vertical", 10, 3, 11, 3))
sketch3.addConstraint(Sketcher.Constraint("Vertical", 12, 3, 13, 3))
sketch3.addConstraint(Sketcher.Constraint("Vertical", 14, 3, 15, 3))
sketch3.addConstraint(Sketcher.Constraint("Diameter", 0, Q("5.1 mm")))
sketch3.addConstraint(Sketcher.Constraint("DistanceY", -1, 1, 0, 3, Q("16 mm")))
sketch3.addConstraint(Sketcher.Constraint("DistanceY", -1, 1, 2, 3, Q("8 mm")))
sketch3.addConstraint(Sketcher.Constraint("DistanceY", 8, 3, -1, 1, Q("24 mm")))
sketch3.addConstraint(Sketcher.Constraint("DistanceX", 1, 3, 0, 3, Q("8 mm")))
sketch3.addConstraint(Sketcher.Constraint("DistanceX", 10, 3, 8, 3, Q("8 mm")))
sketch3.addConstraint(Sketcher.Constraint("DistanceX", 12, 3, 11, 3, Q("8 mm")))
sketch3.addConstraint(Sketcher.Constraint("DistanceX", 14, 3, 12, 3, Q("8 mm")))
sketch3.addConstraint(Sketcher.Constraint("DistanceX", -1, 1, 0, 3, Q("152.329245 mm")))
pad3 = body.newObject("PartDesign::Pad", "Pad002")
pad3.Profile = sketch3
pad3.Length = 1.2
pad3.Reversed = True

# Sketch on XZ plane
sketch4 = body.newObject("Sketcher::SketchObject", "Sketch003")
sketch4.AttachmentSupport = (doc.getObject("XZ_Plane"), [""])
sketch4.MapMode = "FlatFace"
sketch4.AttachmentOffset = App.Placement(Vector(0, 0, 65.526755), App.Rotation())
sketch4.addGeometry(Part.Circle(Vector(100.8, 27.4, 0), Vector(0, 0, 1), 3), False)
sketch4.addGeometry(Part.Circle(Vector(100.8, -3.6, 0), Vector(0, 0, 1), 3), False)
sketch4.addGeometry(Part.Circle(Vector(131.8, -3.6, 0), Vector(0, 0, 1), 3), False)
sketch4.addGeometry(Part.Circle(Vector(131.8, 27.4, 0), Vector(0, 0, 1), 3), False)
sketch4.addConstraint(Sketcher.Constraint("Equal", 0, 1))
sketch4.addConstraint(Sketcher.Constraint("Equal", 1, 2))
sketch4.addConstraint(Sketcher.Constraint("Equal", 2, 3))
sketch4.addConstraint(Sketcher.Constraint("Horizontal", 1, 3, 2, 3))
sketch4.addConstraint(Sketcher.Constraint("Horizontal", 0, 3, 3, 3))
sketch4.addConstraint(Sketcher.Constraint("Vertical", 0, 3, 1, 3))
sketch4.addConstraint(Sketcher.Constraint("Vertical", 2, 3, 3, 3))
sketch4.addConstraint(Sketcher.Constraint("Diameter", 0, Q("6 mm")))
sketch4.addConstraint(Sketcher.Constraint("DistanceY", 1, 3, 0, 3, Q("31 mm")))
sketch4.addConstraint(Sketcher.Constraint("DistanceX", 1, 3, 2, 3, Q("31 mm")))
sketch4.addConstraint(Sketcher.Constraint("DistanceY", -1, 1, 0, 3, Q("27.35 mm")))
sketch4.addConstraint(Sketcher.Constraint("DistanceX", -1, 1, 0, 3, Q("100.829245 mm")))
pocket1 = body.newObject("PartDesign::Pocket", "Pocket")
pocket1.Profile = sketch4
pocket1.Length = 3
doc.recompute()

fillet = body.newObject("PartDesign::Fillet", "Fillet")
fillet.Base = (pocket1, edges_at(pocket1, [
    (156.329, -64.027, 32.65),
    (156.329, -64.027, -28),
    (116.329, -64.027, -28),
    (116.329, -64.027, -8.95),
]))
fillet.Radius = 3

doc.recompute()
